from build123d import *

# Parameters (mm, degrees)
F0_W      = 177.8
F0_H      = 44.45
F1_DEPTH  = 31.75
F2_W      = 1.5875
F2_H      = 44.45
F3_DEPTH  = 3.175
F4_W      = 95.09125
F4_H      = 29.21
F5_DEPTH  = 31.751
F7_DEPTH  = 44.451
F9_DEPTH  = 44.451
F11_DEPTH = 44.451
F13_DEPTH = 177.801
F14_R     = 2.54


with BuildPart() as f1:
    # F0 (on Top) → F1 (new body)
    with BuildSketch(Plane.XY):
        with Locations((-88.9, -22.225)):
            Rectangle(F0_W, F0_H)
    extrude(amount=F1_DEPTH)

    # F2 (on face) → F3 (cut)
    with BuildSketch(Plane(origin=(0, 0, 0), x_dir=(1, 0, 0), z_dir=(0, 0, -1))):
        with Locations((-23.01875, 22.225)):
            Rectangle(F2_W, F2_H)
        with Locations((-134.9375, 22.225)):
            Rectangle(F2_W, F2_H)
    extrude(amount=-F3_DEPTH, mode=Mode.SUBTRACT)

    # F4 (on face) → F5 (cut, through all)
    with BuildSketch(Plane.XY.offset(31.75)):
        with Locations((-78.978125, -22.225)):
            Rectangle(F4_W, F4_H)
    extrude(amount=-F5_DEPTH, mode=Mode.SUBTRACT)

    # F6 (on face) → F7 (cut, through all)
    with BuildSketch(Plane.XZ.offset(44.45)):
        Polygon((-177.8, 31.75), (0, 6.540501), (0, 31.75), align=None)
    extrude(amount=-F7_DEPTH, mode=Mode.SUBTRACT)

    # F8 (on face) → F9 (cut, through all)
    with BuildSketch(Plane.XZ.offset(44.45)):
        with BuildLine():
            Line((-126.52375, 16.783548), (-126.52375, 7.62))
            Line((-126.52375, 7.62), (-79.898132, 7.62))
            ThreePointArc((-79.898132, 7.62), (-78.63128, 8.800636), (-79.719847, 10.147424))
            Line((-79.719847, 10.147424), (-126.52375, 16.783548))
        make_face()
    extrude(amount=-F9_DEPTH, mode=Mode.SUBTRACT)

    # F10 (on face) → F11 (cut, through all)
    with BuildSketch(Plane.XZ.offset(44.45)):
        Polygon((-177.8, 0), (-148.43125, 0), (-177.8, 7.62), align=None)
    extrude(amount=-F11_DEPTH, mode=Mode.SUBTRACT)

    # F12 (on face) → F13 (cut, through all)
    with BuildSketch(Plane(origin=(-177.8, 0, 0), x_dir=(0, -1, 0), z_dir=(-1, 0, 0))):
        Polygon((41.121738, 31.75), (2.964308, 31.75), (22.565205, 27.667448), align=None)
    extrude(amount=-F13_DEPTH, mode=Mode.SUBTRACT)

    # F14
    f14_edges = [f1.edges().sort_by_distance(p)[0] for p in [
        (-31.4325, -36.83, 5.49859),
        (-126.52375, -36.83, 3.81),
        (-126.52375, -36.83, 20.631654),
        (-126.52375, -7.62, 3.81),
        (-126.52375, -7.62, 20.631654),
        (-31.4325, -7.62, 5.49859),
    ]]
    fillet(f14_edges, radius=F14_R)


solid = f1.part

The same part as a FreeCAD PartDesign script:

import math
import FreeCAD as App
import Part
import Sketcher
Q = App.Units.Quantity


def edges_at(feature, points):
    """Names of the edges that pass closest to the given points."""
    edges = feature.Shape.Edges
    near = lambda p: min(range(len(edges)), key=lambda i: edges[i].distToShape(Part.Vertex(*p))[0])
    return sorted({f"Edge{near(p) + 1}" for p in points})

doc = App.newDocument("Part")
body = doc.addObject("PartDesign::Body", "Body")

# Sketch on XY plane
sketch1 = body.newObject("Sketcher::SketchObject", "Sketch")
sketch1.AttachmentSupport = (doc.getObject("XY_Plane"), [""])
sketch1.MapMode = "FlatFace"
sketch1.addGeometry(Part.LineSegment(App.Vector(-177.8, 0, 0), App.Vector(-177.8, -44.45, 0)), False)
sketch1.addGeometry(Part.LineSegment(App.Vector(-177.8, -44.45, 0), App.Vector(0, -44.45, 0)), False)
sketch1.addGeometry(Part.LineSegment(App.Vector(0, -44.45, 0), App.Vector(0, 0, 0)), False)
sketch1.addGeometry(Part.LineSegment(App.Vector(0, 0, 0), App.Vector(-177.8, 0, 0)), False)
sketch1.addConstraint(Sketcher.Constraint("Coincident", 0, 2, 1, 1))
sketch1.addConstraint(Sketcher.Constraint("Coincident", 1, 2, 2, 1))
sketch1.addConstraint(Sketcher.Constraint("Coincident", 2, 2, 3, 1))
sketch1.addConstraint(Sketcher.Constraint("Coincident", 3, 2, 0, 1))
sketch1.addConstraint(Sketcher.Constraint("Vertical", 0))
sketch1.addConstraint(Sketcher.Constraint("Horizontal", 1))
sketch1.addConstraint(Sketcher.Constraint("Vertical", 2))
sketch1.addConstraint(Sketcher.Constraint("Horizontal", 3))
sketch1.addConstraint(Sketcher.Constraint("Coincident", 2, 2, -1, 1))
sketch1.addConstraint(Sketcher.Constraint("DistanceX", 1, 1, 1, 2, Q("7 in")))
sketch1.addConstraint(Sketcher.Constraint("DistanceY", 0, 2, 0, 1, Q("1.75 in")))
pad1 = body.newObject("PartDesign::Pad", "Pad")
pad1.Profile = sketch1
pad1.Length = Q("1.25 in")

# Sketch on XY plane
sketch2 = body.newObject("Sketcher::SketchObject", "Sketch001")
sketch2.AttachmentSupport = (doc.getObject("XY_Plane"), [""])
sketch2.MapMode = "FlatFace"
sketch2.addGeometry(Part.LineSegment(App.Vector(-23.8125, -44.45, 0), App.Vector(-23.8125, 0, 0)), False)
sketch2.addGeometry(Part.LineSegment(App.Vector(-23.8125, 0, 0), App.Vector(-22.225, 0, 0)), False)
sketch2.addGeometry(Part.LineSegment(App.Vector(-22.225, 0, 0), App.Vector(-22.225, -44.45, 0)), False)
sketch2.addGeometry(Part.LineSegment(App.Vector(-22.225, -44.45, 0), App.Vector(-23.8125, -44.45, 0)), False)
sketch2.addGeometry(Part.LineSegment(App.Vector(-135.73125, -44.45, 0), App.Vector(-135.73125, 0, 0)), False)
sketch2.addGeometry(Part.LineSegment(App.Vector(-135.73125, 0, 0), App.Vector(-134.14375, 0, 0)), False)
sketch2.addGeometry(Part.LineSegment(App.Vector(-134.14375, 0, 0), App.Vector(-134.14375, -44.45, 0)), False)
sketch2.addGeometry(Part.LineSegment(App.Vector(-134.14375, -44.45, 0), App.Vector(-135.73125, -44.45, 0)), False)
sketch2.addConstraint(Sketcher.Constraint("Coincident", 0, 2, 1, 1))
sketch2.addConstraint(Sketcher.Constraint("Coincident", 1, 2, 2, 1))
sketch2.addConstraint(Sketcher.Constraint("Coincident", 2, 2, 3, 1))
sketch2.addConstraint(Sketcher.Constraint("Coincident", 3, 2, 0, 1))
sketch2.addConstraint(Sketcher.Constraint("Coincident", 4, 2, 5, 1))
sketch2.addConstraint(Sketcher.Constraint("Coincident", 5, 2, 6, 1))
sketch2.addConstraint(Sketcher.Constraint("Coincident", 6, 2, 7, 1))
sketch2.addConstraint(Sketcher.Constraint("Coincident", 7, 2, 4, 1))
sketch2.addConstraint(Sketcher.Constraint("Vertical", 0))
sketch2.addConstraint(Sketcher.Constraint("Horizontal", 1))
sketch2.addConstraint(Sketcher.Constraint("Vertical", 2))
sketch2.addConstraint(Sketcher.Constraint("Horizontal", 3))
sketch2.addConstraint(Sketcher.Constraint("Vertical", 4))
sketch2.addConstraint(Sketcher.Constraint("Horizontal", 5))
sketch2.addConstraint(Sketcher.Constraint("Vertical", 6))
sketch2.addConstraint(Sketcher.Constraint("Horizontal", 7))
sketch2.addConstraint(Sketcher.Constraint("PointOnObject", 0, 2, -1))
sketch2.addConstraint(Sketcher.Constraint("PointOnObject", 4, 2, -1))
sketch2.addConstraint(Sketcher.Constraint("Horizontal", 3, 2, 6, 2))
sketch2.addConstraint(Sketcher.Constraint("Equal", 3, 5))
sketch2.addConstraint(Sketcher.Constraint("DistanceY", 0, 1, 0, 2, Q("1.75 in")))
sketch2.addConstraint(Sketcher.Constraint("DistanceX", 1, 1, 1, 2, Q("0.0625 in")))
sketch2.addConstraint(Sketcher.Constraint("DistanceX", 0, 2, -1, 1, Q("0.9375 in")))
sketch2.addConstraint(Sketcher.Constraint("DistanceX", 4, 2, -1, 1, Q("5.34375 in")))
pocket1 = body.newObject("PartDesign::Pocket", "Pocket")
pocket1.Profile = sketch2
pocket1.Length = Q("0.125 in")
pocket1.Reversed = True

# Sketch on XY plane
sketch3 = body.newObject("Sketcher::SketchObject", "Sketch002")
sketch3.AttachmentSupport = (doc.getObject("XY_Plane"), [""])
sketch3.MapMode = "FlatFace"
sketch3.AttachmentOffset = App.Placement(App.Vector(0, 0, 1.25 * 25.4), App.Rotation())
sketch3.addGeometry(Part.LineSegment(App.Vector(-126.52375, -7.62, 0), App.Vector(-126.52375, -36.83, 0)), False)
sketch3.addGeometry(Part.LineSegment(App.Vector(-126.52375, -36.83, 0), App.Vector(-31.4325, -36.83, 0)), False)
sketch3.addGeometry(Part.LineSegment(App.Vector(-31.4325, -36.83, 0), App.Vector(-31.4325, -7.62, 0)), False)
sketch3.addGeometry(Part.LineSegment(App.Vector(-31.4325, -7.62, 0), App.Vector(-126.52375, -7.62, 0)), False)
sketch3.addConstraint(Sketcher.Constraint("Coincident", 0, 2, 1, 1))
sketch3.addConstraint(Sketcher.Constraint("Coincident", 1, 2, 2, 1))
sketch3.addConstraint(Sketcher.Constraint("Coincident", 2, 2, 3, 1))
sketch3.addConstraint(Sketcher.Constraint("Coincident", 3, 2, 0, 1))
sketch3.addConstraint(Sketcher.Constraint("Vertical", 0))
sketch3.addConstraint(Sketcher.Constraint("Horizontal", 1))
sketch3.addConstraint(Sketcher.Constraint("Vertical", 2))
sketch3.addConstraint(Sketcher.Constraint("Horizontal", 3))
sketch3.addConstraint(Sketcher.Constraint("DistanceY", 0, 2, 0, 1, Q("1.15 in")))
sketch3.addConstraint(Sketcher.Constraint("DistanceY", 2, 2, -1, 1, Q("0.3 in")))
sketch3.addConstraint(Sketcher.Constraint("DistanceX", 1, 2, -1, 1, Q("1.2375 in")))
sketch3.addConstraint(Sketcher.Constraint("DistanceX", 1, 1, 1, 2, Q("95.09125 mm")))
pocket2 = body.newObject("PartDesign::Pocket", "Pocket001")
pocket2.Profile = sketch3
pocket2.Type = "ThroughAll"

# Sketch on XZ plane
sketch4 = body.newObject("Sketcher::SketchObject", "Sketch003")
sketch4.AttachmentSupport = (doc.getObject("XZ_Plane"), [""])
sketch4.MapMode = "FlatFace"
sketch4.AttachmentOffset = App.Placement(App.Vector(0, 0, 1.75 * 25.4), App.Rotation())
sketch4.addGeometry(Part.LineSegment(App.Vector(-177.8, 31.75, 0), App.Vector(0, 6.540501, 0)), False)
sketch4.addGeometry(Part.LineSegment(App.Vector(0, 6.540501, 0), App.Vector(0, 31.75, 0)), False)
sketch4.addGeometry(Part.LineSegment(App.Vector(0, 31.75, 0), App.Vector(-177.8, 31.75, 0)), False)
sketch4.addConstraint(Sketcher.Constraint("Coincident", 0, 2, 1, 1))
sketch4.addConstraint(Sketcher.Constraint("Coincident", 1, 2, 2, 1))
sketch4.addConstraint(Sketcher.Constraint("Coincident", 2, 2, 0, 1))
sketch4.addConstraint(Sketcher.Constraint("Vertical", 1))
sketch4.addConstraint(Sketcher.Constraint("Horizontal", 2))
sketch4.addConstraint(Sketcher.Constraint("PointOnObject", 0, 2, -2))
sketch4.addConstraint(Sketcher.Constraint("DistanceX", 2, 2, 2, 1, Q("7 in")))
sketch4.addConstraint(Sketcher.Constraint("DistanceY", -1, 1, 1, 2, Q("1.25 in")))
sketch4.addConstraint(Sketcher.Constraint("DistanceY", 1, 1, 1, 2, Q("0.9925 in")))
pocket3 = body.newObject("PartDesign::Pocket", "Pocket002")
pocket3.Profile = sketch4
pocket3.Type = "ThroughAll"

# Sketch on XZ plane
sketch5 = body.newObject("Sketcher::SketchObject", "Sketch004")
sketch5.AttachmentSupport = (doc.getObject("XZ_Plane"), [""])
sketch5.MapMode = "FlatFace"
sketch5.AttachmentOffset = App.Placement(App.Vector(0, 0, 1.75 * 25.4), App.Rotation())
sketch5.addGeometry(Part.LineSegment(App.Vector(-126.52375, 16.783548, 0), App.Vector(-126.52375, 7.62, 0)), False)
sketch5.addGeometry(Part.LineSegment(App.Vector(-126.52375, 7.62, 0), App.Vector(-79.898132, 7.62, 0)), False)
sketch5.addGeometry(Part.ArcOfCircle(Part.Circle(App.Vector(-79.898132, 8.89, 0), App.Vector(0, 0, 1), 1.27), math.radians(-89.999993), math.radians(81.930048)), False)
sketch5.addGeometry(Part.LineSegment(App.Vector(-79.719847, 10.147424, 0), App.Vector(-126.52375, 16.783548, 0)), False)
sketch5.addConstraint(Sketcher.Constraint("Coincident", 0, 2, 1, 1))
sketch5.addConstraint(Sketcher.Constraint("Tangent", 1, 2, 2, 1))
sketch5.addConstraint(Sketcher.Constraint("Tangent", 2, 2, 3, 1))
sketch5.addConstraint(Sketcher.Constraint("Coincident", 3, 2, 0, 1))
sketch5.addConstraint(Sketcher.Constraint("Vertical", 0))
sketch5.addConstraint(Sketcher.Constraint("Horizontal", 1))
sketch5.addConstraint(Sketcher.Constraint("Radius", 2, Q("0.05 in")))
sketch5.addConstraint(Sketcher.Constraint("DistanceY", -1, 1, 0, 2, Q("0.3 in")))
sketch5.addConstraint(Sketcher.Constraint("DistanceX", 1, 1, 1, 2, Q("46.625618 mm")))
sketch5.addConstraint(Sketcher.Constraint("DistanceY", 0, 2, 0, 1, Q("9.163548 mm")))
sketch5.addConstraint(Sketcher.Constraint("DistanceX", 0, 2, -1, 1, Q("126.52375 mm")))
pocket4 = body.newObject("PartDesign::Pocket", "Pocket003")
pocket4.Profile = sketch5
pocket4.Type = "ThroughAll"

# Sketch on XZ plane
sketch6 = body.newObject("Sketcher::SketchObject", "Sketch005")
sketch6.AttachmentSupport = (doc.getObject("XZ_Plane"), [""])
sketch6.MapMode = "FlatFace"
sketch6.AttachmentOffset = App.Placement(App.Vector(0, 0, 1.75 * 25.4), App.Rotation())
sketch6.addGeometry(Part.LineSegment(App.Vector(-177.8, 0, 0), App.Vector(-148.43125, 0, 0)), False)
sketch6.addGeometry(Part.LineSegment(App.Vector(-148.43125, 0, 0), App.Vector(-177.8, 7.62, 0)), False)
sketch6.addGeometry(Part.LineSegment(App.Vector(-177.8, 7.62, 0), App.Vector(-177.8, 0, 0)), False)
sketch6.addConstraint(Sketcher.Constraint("Coincident", 0, 2, 1, 1))
sketch6.addConstraint(Sketcher.Constraint("Coincident", 1, 2, 2, 1))
sketch6.addConstraint(Sketcher.Constraint("Coincident", 2, 2, 0, 1))
sketch6.addConstraint(Sketcher.Constraint("Horizontal", 0))
sketch6.addConstraint(Sketcher.Constraint("Vertical", 2))
sketch6.addConstraint(Sketcher.Constraint("PointOnObject", 0, 2, -1))
sketch6.addConstraint(Sketcher.Constraint("DistanceY", 2, 2, 2, 1, Q("0.3 in")))
sketch6.addConstraint(Sketcher.Constraint("DistanceX", 1, 2, -1, 1, Q("7 in")))
sketch6.addConstraint(Sketcher.Constraint("DistanceX", 0, 1, 0, 2, Q("1.15625 in")))
pocket5 = body.newObject("PartDesign::Pocket", "Pocket004")
pocket5.Profile = sketch6
pocket5.Type = "ThroughAll"

# Sketch on YZ plane
sketch7 = body.newObject("Sketcher::SketchObject", "Sketch006")
sketch7.AttachmentSupport = (doc.getObject("YZ_Plane"), [""])
sketch7.MapMode = "FlatFace"
sketch7.AttachmentOffset = App.Placement(App.Vector(0, 0, -7 * 25.4), App.Rotation())
sketch7.addGeometry(Part.LineSegment(App.Vector(-41.121738, 31.75, 0), App.Vector(-2.964308, 31.75, 0)), False)
sketch7.addGeometry(Part.LineSegment(App.Vector(-2.964308, 31.75, 0), App.Vector(-22.565205, 27.667448, 0)), False)
sketch7.addGeometry(Part.LineSegment(App.Vector(-22.565205, 27.667448, 0), App.Vector(-41.121738, 31.75, 0)), False)
sketch7.addConstraint(Sketcher.Constraint("Coincident", 0, 2, 1, 1))
sketch7.addConstraint(Sketcher.Constraint("Coincident", 1, 2, 2, 1))
sketch7.addConstraint(Sketcher.Constraint("Coincident", 2, 2, 0, 1))
sketch7.addConstraint(Sketcher.Constraint("Horizontal", 0))
sketch7.addConstraint(Sketcher.Constraint("DistanceY", -1, 1, 0, 2, Q("1.25 in")))
sketch7.addConstraint(Sketcher.Constraint("DistanceX", 0, 1, 0, 2, Q("38.15743 mm")))
sketch7.addConstraint(Sketcher.Constraint("Distance", 1, Q("20.021548 mm")))
sketch7.addConstraint(Sketcher.Constraint("Distance", 2, Q("19.00032 mm")))
sketch7.addConstraint(Sketcher.Constraint("DistanceX", 0, 2, -1, 1, Q("2.964308 mm")))
pocket6 = body.newObject("PartDesign::Pocket", "Pocket005")
pocket6.Profile = sketch7
pocket6.Type = "ThroughAll"
pocket6.Reversed = True
doc.recompute()

fillet = body.newObject("PartDesign::Fillet", "Fillet")
fillet.Base = (pocket6, edges_at(pocket6, [
    (-31.433, -36.83, 5.499),
    (-126.524, -36.83, 3.81),
    (-126.524, -36.83, 20.632),
    (-126.524, -7.62, 3.81),
    (-126.524, -7.62, 20.632),
    (-31.433, -7.62, 5.499),
]))
fillet.Radius = Q("0.1 in")

doc.recompute()
